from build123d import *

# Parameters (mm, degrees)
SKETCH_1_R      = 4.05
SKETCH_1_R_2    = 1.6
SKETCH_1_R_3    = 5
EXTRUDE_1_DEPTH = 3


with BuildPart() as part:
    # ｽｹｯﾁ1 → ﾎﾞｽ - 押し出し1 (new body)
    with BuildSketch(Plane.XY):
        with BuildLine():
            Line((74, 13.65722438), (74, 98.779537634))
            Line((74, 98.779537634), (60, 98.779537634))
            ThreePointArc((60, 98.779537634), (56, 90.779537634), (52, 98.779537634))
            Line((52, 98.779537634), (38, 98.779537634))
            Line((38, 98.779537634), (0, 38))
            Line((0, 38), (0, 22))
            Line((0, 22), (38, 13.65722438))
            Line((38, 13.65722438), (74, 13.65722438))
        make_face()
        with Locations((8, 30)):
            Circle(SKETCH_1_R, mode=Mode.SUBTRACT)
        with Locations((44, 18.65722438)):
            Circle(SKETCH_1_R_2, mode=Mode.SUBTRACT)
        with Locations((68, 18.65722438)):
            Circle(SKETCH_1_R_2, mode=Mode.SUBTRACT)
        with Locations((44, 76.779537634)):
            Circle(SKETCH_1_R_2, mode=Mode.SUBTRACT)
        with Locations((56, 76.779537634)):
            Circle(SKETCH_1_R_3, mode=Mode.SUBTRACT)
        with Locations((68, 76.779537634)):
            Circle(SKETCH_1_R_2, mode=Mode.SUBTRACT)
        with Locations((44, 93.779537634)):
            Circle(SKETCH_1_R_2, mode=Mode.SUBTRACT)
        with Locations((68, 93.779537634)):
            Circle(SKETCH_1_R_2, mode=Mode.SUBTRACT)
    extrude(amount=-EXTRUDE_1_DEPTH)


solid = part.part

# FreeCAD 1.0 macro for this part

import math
import FreeCAD as App
import Part
import Sketcher

V = App.Vector

doc = App.newDocument("Part")
body = doc.addObject("PartDesign::Body", "Body")

sketch1 = doc.addObject("Sketcher::SketchObject", "Sketch")
body.addObject(sketch1)
sketch1.AttachmentSupport = (doc.XY_Plane, [""])
sketch1.MapMode = "FlatFace"
sketch1.addGeometry([
    Part.LineSegment(V(74, 13.657224, 0), V(74, 98.779538, 0)),
    Part.LineSegment(V(74, 98.779538, 0), V(60, 98.779538, 0)),
    Part.ArcOfCircle(Part.Circle(V(56, 95.779538, 0), V(0, 0, 1), 5), math.radians(143.130102), math.radians(396.869898)),
    Part.LineSegment(V(52, 98.779538, 0), V(38, 98.779538, 0)),
    Part.LineSegment(V(38, 98.779538, 0), V(0, 38, 0)),
    Part.LineSegment(V(0, 38, 0), V(0, 22, 0)),
    Part.LineSegment(V(0, 22, 0), V(38, 13.657224, 0)),
    Part.LineSegment(V(38, 13.657224, 0), V(74, 13.657224, 0)),
    Part.Circle(V(8, 30, 0), V(0, 0, 1), 4.05),
    Part.Circle(V(44, 18.657224, 0), V(0, 0, 1), 1.6),
    Part.Circle(V(68, 18.657224, 0), V(0, 0, 1), 1.6),
    Part.Circle(V(44, 76.779538, 0), V(0, 0, 1), 1.6),
    Part.Circle(V(44, 93.779538, 0), V(0, 0, 1), 1.6),
    Part.Circle(V(56, 76.779538, 0), V(0, 0, 1), 5),
    Part.Circle(V(68, 76.779538, 0), V(0, 0, 1), 1.6),
    Part.Circle(V(68, 93.779538, 0), V(0, 0, 1), 1.6),
], False)
sketch1.addConstraint([
    Sketcher.Constraint("Coincident", 0, 2, 1, 1),
    Sketcher.Constraint("Coincident", 1, 2, 2, 2),
    Sketcher.Constraint("Coincident", 2, 1, 3, 1),
    Sketcher.Constraint("Coincident", 3, 2, 4, 1),
    Sketcher.Constraint("Coincident", 4, 2, 5, 1),
    Sketcher.Constraint("Coincident", 5, 2, 6, 1),
    Sketcher.Constraint("Coincident", 6, 2, 7, 1),
    Sketcher.Constraint("Coincident", 7, 2, 0, 1),
    Sketcher.Constraint("Vertical", 0),
    Sketcher.Constraint("Horizontal", 1),
    Sketcher.Constraint("Horizontal", 3),
    Sketcher.Constraint("Vertical", 5),
    Sketcher.Constraint("Horizontal", 7),
    Sketcher.Constraint("Equal", 9, 10),
    Sketcher.Constraint("Equal", 10, 11),
    Sketcher.Constraint("Equal", 11, 12),
    Sketcher.Constraint("Equal", 2, 13),
    Sketcher.Constraint("Equal", 12, 14),
    Sketcher.Constraint("Equal", 14, 15),
    Sketcher.Constraint("PointOnObject", 4, 2, -2),
    Sketcher.Constraint("Horizontal", 9, 3, 10, 3),
    Sketcher.Constraint("Horizontal", 11, 3, 13, 3),
    Sketcher.Constraint("Horizontal", 13, 3, 14, 3),
    Sketcher.Constraint("Horizontal", 12, 3, 15, 3),
    Sketcher.Constraint("Horizontal", 1, 2, 2, 1),
    Sketcher.Constraint("Vertical", 9, 3, 11, 3),
    Sketcher.Constraint("Vertical", 11, 3, 12, 3),
    Sketcher.Constraint("Vertical", 2, 3, 13, 3),
    Sketcher.Constraint("Vertical", 10, 3, 14, 3),
    Sketcher.Constraint("Vertical", 14, 3, 15, 3),
    Sketcher.Constraint("Vertical", 3, 2, 6, 2),
    Sketcher.Constraint("Equal", 1, 3),
    Sketcher.Constraint("Diameter", 13, 10.0),
    Sketcher.Constraint("Diameter", 8, 8.1),
    Sketcher.Constraint("Diameter", 9, 3.2),
    Sketcher.Constraint("DistanceX", 1, 2, 1, 1, 14.0),
    Sketcher.Constraint("DistanceX", 7, 1, 7, 2, 36.0),
    Sketcher.Constraint("DistanceY", 5, 2, 5, 1, 16.0),
    Sketcher.Constraint("DistanceX", -1, 1, 2, 3, 56.0),
    Sketcher.Constraint("DistanceX", -1, 1, 8, 3, 8.0),
    Sketcher.Constraint("DistanceY", -1, 1, 8, 3, 30.0),
    Sketcher.Constraint("DistanceX", -1, 1, 9, 3, 44.0),
    Sketcher.Constraint("DistanceX", -1, 1, 10, 3, 68.0),
    Sketcher.Constraint("DistanceY", -1, 1, 4, 2, 38.0),
    Sketcher.Constraint("DistanceY", 11, 3, 2, 3, 19.0),
    Sketcher.Constraint("DistanceY", 12, 3, 2, 3, 2.0),
    Sketcher.Constraint("DistanceY", 6, 2, 9, 3, 5.0),
    Sketcher.Constraint("DistanceY", 0, 1, 0, 2, 85.122313),
    Sketcher.Constraint("Distance", 4, 71.680905),
])
pad1 = doc.addObject("PartDesign::Pad", "Pad")
body.addObject(pad1)
pad1.Profile = sketch1
pad1.Length = 3
pad1.Reversed = True

doc.recompute()
